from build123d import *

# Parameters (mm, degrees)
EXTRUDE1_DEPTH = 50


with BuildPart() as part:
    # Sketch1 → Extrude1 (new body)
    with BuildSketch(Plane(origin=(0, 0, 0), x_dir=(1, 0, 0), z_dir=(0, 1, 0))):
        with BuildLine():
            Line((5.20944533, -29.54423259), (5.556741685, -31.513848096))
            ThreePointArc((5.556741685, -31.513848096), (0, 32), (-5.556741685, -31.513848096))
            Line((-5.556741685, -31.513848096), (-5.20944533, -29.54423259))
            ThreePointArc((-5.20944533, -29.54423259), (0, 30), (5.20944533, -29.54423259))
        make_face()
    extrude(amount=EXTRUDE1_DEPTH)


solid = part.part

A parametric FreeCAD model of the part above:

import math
import FreeCAD as App
import Part
import Sketcher
from FreeCAD import Vector
Q = App.Units.Quantity

doc = App.newDocument("Part")
body = doc.addObject("PartDesign::Body", "Body")

sketch1 = doc.addObject("Sketcher::SketchObject", "Sketch")
body.addObject(sketch1)
sketch1.AttachmentSupport = (doc.XZ_Plane, [""])
sketch1.MapMode = "FlatFace"
sketch1.addGeometry(Part.LineSegment(Vector(5.2, 29.5, 0), Vector(5.6, 31.5, 0)), False)
sketch1.addGeometry(Part.ArcOfCircle(Part.Circle(Vector(0, 0, 0), Vector(0, 0, 1), 32), math.radians(100), math.radians(440)), False)
sketch1.addGeometry(Part.LineSegment(Vector(-5.6, 31.5, 0), Vector(-5.2, 29.5, 0)), False)
sketch1.addGeometry(Part.ArcOfCircle(Part.Circle(Vector(0, 0, 0), Vector(0, 0, 1), 30), math.radians(100), math.radians(440)), False)
sketch1.addConstraint(Sketcher.Constraint("Coincident", 0, 2, 1, 2))
sketch1.addConstraint(Sketcher.Constraint("Coincident", 1, 1, 2, 1))
sketch1.addConstraint(Sketcher.Constraint("Coincident", 2, 2, 3, 1))
sketch1.addConstraint(Sketcher.Constraint("Coincident", 3, 2, 0, 1))
sketch1.addConstraint(Sketcher.Constraint("Coincident", 1, 3, -1, 1))
sketch1.addConstraint(Sketcher.Constraint("Coincident", 3, 3, -1, 1))
sketch1.addConstraint(Sketcher.Constraint("Horizontal", 0, 2, 1, 1))
sketch1.addConstraint(Sketcher.Constraint("Horizontal", 2, 2, 3, 2))
sketch1.addConstraint(Sketcher.Constraint("Radius", 1, Q("32 mm")))
sketch1.addConstraint(Sketcher.Constraint("Radius", 3, Q("30 mm")))
sketch1.addConstraint(Sketcher.Constraint("Angle", 0, Q("80 deg")))
sketch1.addConstraint(Sketcher.Constraint("DistanceX", -1, 1, 0, 2, Q("5.556742 mm")))
pad1 = doc.addObject("PartDesign::Pad", "Pad")
body.addObject(pad1)
pad1.Profile = sketch1
pad1.Length = 50
pad1.Reversed = True

doc.recompute()
